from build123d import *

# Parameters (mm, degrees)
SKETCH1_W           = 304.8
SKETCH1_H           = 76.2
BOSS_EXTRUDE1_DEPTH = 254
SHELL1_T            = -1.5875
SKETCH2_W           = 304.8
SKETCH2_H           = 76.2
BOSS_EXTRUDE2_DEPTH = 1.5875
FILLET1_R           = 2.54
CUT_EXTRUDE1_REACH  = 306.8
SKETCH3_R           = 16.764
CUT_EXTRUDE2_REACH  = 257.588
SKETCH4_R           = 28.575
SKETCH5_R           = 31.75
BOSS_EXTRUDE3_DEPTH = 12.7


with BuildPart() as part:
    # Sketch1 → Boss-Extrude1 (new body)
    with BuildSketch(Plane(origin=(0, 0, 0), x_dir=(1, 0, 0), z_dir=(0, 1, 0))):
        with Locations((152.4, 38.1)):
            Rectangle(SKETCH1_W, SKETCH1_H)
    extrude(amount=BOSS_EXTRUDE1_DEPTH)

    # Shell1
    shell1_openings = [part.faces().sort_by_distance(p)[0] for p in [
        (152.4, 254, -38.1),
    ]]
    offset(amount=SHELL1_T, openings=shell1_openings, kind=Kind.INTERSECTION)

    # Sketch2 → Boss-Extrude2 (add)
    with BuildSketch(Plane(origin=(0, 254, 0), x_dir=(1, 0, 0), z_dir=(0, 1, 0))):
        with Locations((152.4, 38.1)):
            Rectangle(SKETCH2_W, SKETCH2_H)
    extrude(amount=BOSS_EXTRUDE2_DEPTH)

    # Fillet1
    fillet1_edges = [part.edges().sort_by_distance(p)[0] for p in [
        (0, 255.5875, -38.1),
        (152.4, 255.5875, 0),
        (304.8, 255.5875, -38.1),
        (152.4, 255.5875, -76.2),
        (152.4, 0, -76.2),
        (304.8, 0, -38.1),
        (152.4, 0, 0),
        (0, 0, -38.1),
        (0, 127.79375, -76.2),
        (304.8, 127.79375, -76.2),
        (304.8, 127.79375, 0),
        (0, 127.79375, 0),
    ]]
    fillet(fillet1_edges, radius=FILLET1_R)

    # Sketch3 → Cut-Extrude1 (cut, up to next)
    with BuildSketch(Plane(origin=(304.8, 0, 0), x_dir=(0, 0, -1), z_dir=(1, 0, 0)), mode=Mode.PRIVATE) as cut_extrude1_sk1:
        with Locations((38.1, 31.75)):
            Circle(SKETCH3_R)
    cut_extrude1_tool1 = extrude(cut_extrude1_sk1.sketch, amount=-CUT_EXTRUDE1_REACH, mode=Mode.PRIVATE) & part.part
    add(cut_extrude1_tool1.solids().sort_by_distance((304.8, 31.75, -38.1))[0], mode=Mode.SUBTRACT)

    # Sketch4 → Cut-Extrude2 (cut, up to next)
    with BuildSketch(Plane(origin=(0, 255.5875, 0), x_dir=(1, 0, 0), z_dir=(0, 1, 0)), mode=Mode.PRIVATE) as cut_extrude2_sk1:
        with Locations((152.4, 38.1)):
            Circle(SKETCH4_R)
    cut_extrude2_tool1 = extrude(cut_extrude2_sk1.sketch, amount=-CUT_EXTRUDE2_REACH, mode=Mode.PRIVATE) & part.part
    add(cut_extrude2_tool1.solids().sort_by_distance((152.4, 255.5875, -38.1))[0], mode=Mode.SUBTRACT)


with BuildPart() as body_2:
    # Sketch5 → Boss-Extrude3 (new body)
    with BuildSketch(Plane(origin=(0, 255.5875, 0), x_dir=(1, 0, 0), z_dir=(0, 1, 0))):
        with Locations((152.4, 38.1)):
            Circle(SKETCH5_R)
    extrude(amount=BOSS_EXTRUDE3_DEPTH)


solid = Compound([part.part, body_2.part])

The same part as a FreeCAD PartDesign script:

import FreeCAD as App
import Part
import Sketcher
Q = App.Units.Quantity


def edges_at(feature, points):
    """Names of the edges that pass closest to the given points."""
    edges = feature.Shape.Edges
    near = lambda p: min(range(len(edges)), key=lambda i: edges[i].distToShape(Part.Vertex(*p))[0])
    return sorted({f"Edge{near(p) + 1}" for p in points})


def faces_at(feature, points):
    """Names of the faces that lie closest to the given points."""
    faces = feature.Shape.Faces
    near = lambda p: min(range(len(faces)), key=lambda i: faces[i].distToShape(Part.Vertex(*p))[0])
    return sorted({f"Face{near(p) + 1}" for p in points})

doc = App.newDocument("Part")
params = doc.addObject("Spreadsheet::Sheet", "Params")
for row, (alias, value) in enumerate([
    ("sketch1_width", "12 in"),
    ("sketch1_height", "3 in"),
    ("pad1_length", "10 in"),
    ("thickness_wall", "0.0625 in"),
    ("sketch2_width", "12 in"),
    ("sketch2_height", "3 in"),
    ("pad2_length", "0.0625 in"),
    ("fillet_radius", "0.1 in"),
    ("sketch3_diameter", "1.32 in"),
    ("sketch4_diameter", "2.25 in"),
    ("sketch5_diameter", "2.5 in"),
    ("pad3_length", "0.5 in"),
], start=1):
    params.set(f"A{row}", alias)
    params.set(f"B{row}", "=" + value)
    params.setAlias(f"B{row}", alias)

body = doc.addObject("PartDesign::Body", "Body")

sketch1 = body.newObject("Sketcher::SketchObject", "Sketch")
sketch1.AttachmentSupport = (doc.getObject("XZ_Plane"), [""])
sketch1.MapMode = "FlatFace"
sketch1.addGeometry(Part.LineSegment(App.Vector(0, -76, 0), App.Vector(0, 0, 0)), False)
sketch1.addGeometry(Part.LineSegment(App.Vector(0, 0, 0), App.Vector(305, 0, 0)), False)
sketch1.addGeometry(Part.LineSegment(App.Vector(305, 0, 0), App.Vector(305, -76, 0)), False)
sketch1.addGeometry(Part.LineSegment(App.Vector(305, -76, 0), App.Vector(0, -76, 0)), False)
sketch1.addConstraint(Sketcher.Constraint("Coincident", 0, 2, 1, 1))
sketch1.addConstraint(Sketcher.Constraint("Coincident", 1, 2, 2, 1))
sketch1.addConstraint(Sketcher.Constraint("Coincident", 2, 2, 3, 1))
sketch1.addConstraint(Sketcher.Constraint("Coincident", 3, 2, 0, 1))
sketch1.addConstraint(Sketcher.Constraint("Vertical", 0))
sketch1.addConstraint(Sketcher.Constraint("Horizontal", 1))
sketch1.addConstraint(Sketcher.Constraint("Vertical", 2))
sketch1.addConstraint(Sketcher.Constraint("Horizontal", 3))
sketch1.addConstraint(Sketcher.Constraint("Coincident", 0, 2, -1, 1))
sketch1.addConstraint(Sketcher.Constraint("DistanceX", 1, 1, 1, 2, Q("12 in")))
sketch1.addConstraint(Sketcher.Constraint("DistanceY", 0, 1, 0, 2, Q("3 in")))
sketch1.setExpression("Constraints[9]", "Params.sketch1_width")
sketch1.setExpression("Constraints[10]", "Params.sketch1_height")
pad1 = body.newObject("PartDesign::Pad", "Pad")
pad1.Profile = sketch1
pad1.setExpression("Length", "Params.pad1_length")
pad1.Reversed = True
doc.recompute()

thickness = body.newObject("PartDesign::Thickness", "Thickness")
thickness.Base = (pad1, faces_at(pad1, [(152.4, 254, -38.1)]))
thickness.setExpression("Value", "Params.thickness_wall")
thickness.Reversed = True
thickness.Join = "Intersection"

sketch2 = body.newObject("Sketcher::SketchObject", "Sketch001")
sketch2.AttachmentSupport = (doc.getObject("XZ_Plane"), [""])
sketch2.MapMode = "FlatFace"
sketch2.AttachmentOffset = App.Placement(App.Vector(0, 0, -10 * 25.4), App.Rotation())
sketch2.addGeometry(Part.LineSegment(App.Vector(0, -76, 0), App.Vector(0, 0, 0)), False)
sketch2.addGeometry(Part.LineSegment(App.Vector(0, 0, 0), App.Vector(305, 0, 0)), False)
sketch2.addGeometry(Part.LineSegment(App.Vector(305, 0, 0), App.Vector(305, -76, 0)), False)
sketch2.addGeometry(Part.LineSegment(App.Vector(305, -76, 0), App.Vector(0, -76, 0)), False)
sketch2.addConstraint(Sketcher.Constraint("Coincident", 0, 2, 1, 1))
sketch2.addConstraint(Sketcher.Constraint("Coincident", 1, 2, 2, 1))
sketch2.addConstraint(Sketcher.Constraint("Coincident", 2, 2, 3, 1))
sketch2.addConstraint(Sketcher.Constraint("Coincident", 3, 2, 0, 1))
sketch2.addConstraint(Sketcher.Constraint("Vertical", 0))
sketch2.addConstraint(Sketcher.Constraint("Horizontal", 1))
sketch2.addConstraint(Sketcher.Constraint("Vertical", 2))
sketch2.addConstraint(Sketcher.Constraint("Horizontal", 3))
sketch2.addConstraint(Sketcher.Constraint("Coincident", 0, 2, -1, 1))
sketch2.addConstraint(Sketcher.Constraint("DistanceX", 1, 1, 1, 2, Q("12 in")))
sketch2.addConstraint(Sketcher.Constraint("DistanceY", 0, 1, 0, 2, Q("3 in")))
sketch2.setExpression("Constraints[9]", "Params.sketch2_width")
sketch2.setExpression("Constraints[10]", "Params.sketch2_height")
pad2 = body.newObject("PartDesign::Pad", "Pad001")
pad2.Profile = sketch2
pad2.setExpression("Length", "Params.pad2_length")
pad2.Reversed = True
doc.recompute()

fillet = body.newObject("PartDesign::Fillet", "Fillet")
fillet.Base = (pad2, edges_at(pad2, [
    (0, 255.588, -38.1),
    (152.4, 255.588, 0),
    (304.8, 255.588, -38.1),
    (152.4, 255.588, -76.2),
    (152.4, 0, -76.2),
    (304.8, 0, -38.1),
    (152.4, 0, 0),
    (0, 0, -38.1),
    (0, 127.794, -76.2),
    (304.8, 127.794, -76.2),
    (304.8, 127.794, 0),
    (0, 127.794, 0),
]))
fillet.setExpression("Radius", "Params.fillet_radius")

sketch3 = body.newObject("Sketcher::SketchObject", "Sketch002")
sketch3.AttachmentSupport = (doc.getObject("YZ_Plane"), [""])
sketch3.MapMode = "FlatFace"
sketch3.AttachmentOffset = App.Placement(App.Vector(0, 0, 12 * 25.4), App.Rotation())
sketch3.addGeometry(Part.Circle(App.Vector(32, -38, 0), App.Vector(0, 0, 1), 17), False)
sketch3.addConstraint(Sketcher.Constraint("Diameter", 0, Q("1.32 in")))
sketch3.addConstraint(Sketcher.Constraint("DistanceY", 0, 3, -1, 1, Q("1.5 in")))
sketch3.addConstraint(Sketcher.Constraint("DistanceX", -1, 1, 0, 3, Q("1.25 in")))
sketch3.setExpression("Constraints[0]", "Params.sketch3_diameter")
pocket1 = body.newObject("PartDesign::Pocket", "Pocket")
pocket1.Profile = sketch3
pocket1.Type = "UpToFirst"

sketch4 = body.newObject("Sketcher::SketchObject", "Sketch003")
sketch4.AttachmentSupport = (doc.getObject("XZ_Plane"), [""])
sketch4.MapMode = "FlatFace"
sketch4.AttachmentOffset = App.Placement(App.Vector(0, 0, -10.0625 * 25.4), App.Rotation())
sketch4.addGeometry(Part.Circle(App.Vector(152, -38, 0), App.Vector(0, 0, 1), 29), False)
sketch4.addConstraint(Sketcher.Constraint("Diameter", 0, Q("2.25 in")))
sketch4.addConstraint(Sketcher.Constraint("DistanceX", -1, 1, 0, 3, Q("6 in")))
sketch4.addConstraint(Sketcher.Constraint("DistanceY", 0, 3, -1, 1, Q("1.5 in")))
sketch4.setExpression("Constraints[0]", "Params.sketch4_diameter")
pocket2 = body.newObject("PartDesign::Pocket", "Pocket001")
pocket2.Profile = sketch4
pocket2.Type = "UpToFirst"
pocket2.Reversed = True
body2 = doc.addObject("PartDesign::Body", "Body001")

sketch5 = body2.newObject("Sketcher::SketchObject", "Sketch004")
sketch5.AttachmentSupport = (doc.getObject("XZ_Plane001"), [""])
sketch5.MapMode = "FlatFace"
sketch5.AttachmentOffset = App.Placement(App.Vector(0, 0, -10.0625 * 25.4), App.Rotation())
sketch5.addGeometry(Part.Circle(App.Vector(152, -38, 0), App.Vector(0, 0, 1), 32), False)
sketch5.addConstraint(Sketcher.Constraint("Diameter", 0, Q("2.5 in")))
sketch5.addConstraint(Sketcher.Constraint("DistanceX", -1, 1, 0, 3, Q("6 in")))
sketch5.addConstraint(Sketcher.Constraint("DistanceY", 0, 3, -1, 1, Q("1.5 in")))
sketch5.setExpression("Constraints[0]", "Params.sketch5_diameter")
pad3 = body2.newObject("PartDesign::Pad", "Pad002")
pad3.Profile = sketch5
pad3.setExpression("Length", "Params.pad3_length")
pad3.Reversed = True

doc.recompute()
